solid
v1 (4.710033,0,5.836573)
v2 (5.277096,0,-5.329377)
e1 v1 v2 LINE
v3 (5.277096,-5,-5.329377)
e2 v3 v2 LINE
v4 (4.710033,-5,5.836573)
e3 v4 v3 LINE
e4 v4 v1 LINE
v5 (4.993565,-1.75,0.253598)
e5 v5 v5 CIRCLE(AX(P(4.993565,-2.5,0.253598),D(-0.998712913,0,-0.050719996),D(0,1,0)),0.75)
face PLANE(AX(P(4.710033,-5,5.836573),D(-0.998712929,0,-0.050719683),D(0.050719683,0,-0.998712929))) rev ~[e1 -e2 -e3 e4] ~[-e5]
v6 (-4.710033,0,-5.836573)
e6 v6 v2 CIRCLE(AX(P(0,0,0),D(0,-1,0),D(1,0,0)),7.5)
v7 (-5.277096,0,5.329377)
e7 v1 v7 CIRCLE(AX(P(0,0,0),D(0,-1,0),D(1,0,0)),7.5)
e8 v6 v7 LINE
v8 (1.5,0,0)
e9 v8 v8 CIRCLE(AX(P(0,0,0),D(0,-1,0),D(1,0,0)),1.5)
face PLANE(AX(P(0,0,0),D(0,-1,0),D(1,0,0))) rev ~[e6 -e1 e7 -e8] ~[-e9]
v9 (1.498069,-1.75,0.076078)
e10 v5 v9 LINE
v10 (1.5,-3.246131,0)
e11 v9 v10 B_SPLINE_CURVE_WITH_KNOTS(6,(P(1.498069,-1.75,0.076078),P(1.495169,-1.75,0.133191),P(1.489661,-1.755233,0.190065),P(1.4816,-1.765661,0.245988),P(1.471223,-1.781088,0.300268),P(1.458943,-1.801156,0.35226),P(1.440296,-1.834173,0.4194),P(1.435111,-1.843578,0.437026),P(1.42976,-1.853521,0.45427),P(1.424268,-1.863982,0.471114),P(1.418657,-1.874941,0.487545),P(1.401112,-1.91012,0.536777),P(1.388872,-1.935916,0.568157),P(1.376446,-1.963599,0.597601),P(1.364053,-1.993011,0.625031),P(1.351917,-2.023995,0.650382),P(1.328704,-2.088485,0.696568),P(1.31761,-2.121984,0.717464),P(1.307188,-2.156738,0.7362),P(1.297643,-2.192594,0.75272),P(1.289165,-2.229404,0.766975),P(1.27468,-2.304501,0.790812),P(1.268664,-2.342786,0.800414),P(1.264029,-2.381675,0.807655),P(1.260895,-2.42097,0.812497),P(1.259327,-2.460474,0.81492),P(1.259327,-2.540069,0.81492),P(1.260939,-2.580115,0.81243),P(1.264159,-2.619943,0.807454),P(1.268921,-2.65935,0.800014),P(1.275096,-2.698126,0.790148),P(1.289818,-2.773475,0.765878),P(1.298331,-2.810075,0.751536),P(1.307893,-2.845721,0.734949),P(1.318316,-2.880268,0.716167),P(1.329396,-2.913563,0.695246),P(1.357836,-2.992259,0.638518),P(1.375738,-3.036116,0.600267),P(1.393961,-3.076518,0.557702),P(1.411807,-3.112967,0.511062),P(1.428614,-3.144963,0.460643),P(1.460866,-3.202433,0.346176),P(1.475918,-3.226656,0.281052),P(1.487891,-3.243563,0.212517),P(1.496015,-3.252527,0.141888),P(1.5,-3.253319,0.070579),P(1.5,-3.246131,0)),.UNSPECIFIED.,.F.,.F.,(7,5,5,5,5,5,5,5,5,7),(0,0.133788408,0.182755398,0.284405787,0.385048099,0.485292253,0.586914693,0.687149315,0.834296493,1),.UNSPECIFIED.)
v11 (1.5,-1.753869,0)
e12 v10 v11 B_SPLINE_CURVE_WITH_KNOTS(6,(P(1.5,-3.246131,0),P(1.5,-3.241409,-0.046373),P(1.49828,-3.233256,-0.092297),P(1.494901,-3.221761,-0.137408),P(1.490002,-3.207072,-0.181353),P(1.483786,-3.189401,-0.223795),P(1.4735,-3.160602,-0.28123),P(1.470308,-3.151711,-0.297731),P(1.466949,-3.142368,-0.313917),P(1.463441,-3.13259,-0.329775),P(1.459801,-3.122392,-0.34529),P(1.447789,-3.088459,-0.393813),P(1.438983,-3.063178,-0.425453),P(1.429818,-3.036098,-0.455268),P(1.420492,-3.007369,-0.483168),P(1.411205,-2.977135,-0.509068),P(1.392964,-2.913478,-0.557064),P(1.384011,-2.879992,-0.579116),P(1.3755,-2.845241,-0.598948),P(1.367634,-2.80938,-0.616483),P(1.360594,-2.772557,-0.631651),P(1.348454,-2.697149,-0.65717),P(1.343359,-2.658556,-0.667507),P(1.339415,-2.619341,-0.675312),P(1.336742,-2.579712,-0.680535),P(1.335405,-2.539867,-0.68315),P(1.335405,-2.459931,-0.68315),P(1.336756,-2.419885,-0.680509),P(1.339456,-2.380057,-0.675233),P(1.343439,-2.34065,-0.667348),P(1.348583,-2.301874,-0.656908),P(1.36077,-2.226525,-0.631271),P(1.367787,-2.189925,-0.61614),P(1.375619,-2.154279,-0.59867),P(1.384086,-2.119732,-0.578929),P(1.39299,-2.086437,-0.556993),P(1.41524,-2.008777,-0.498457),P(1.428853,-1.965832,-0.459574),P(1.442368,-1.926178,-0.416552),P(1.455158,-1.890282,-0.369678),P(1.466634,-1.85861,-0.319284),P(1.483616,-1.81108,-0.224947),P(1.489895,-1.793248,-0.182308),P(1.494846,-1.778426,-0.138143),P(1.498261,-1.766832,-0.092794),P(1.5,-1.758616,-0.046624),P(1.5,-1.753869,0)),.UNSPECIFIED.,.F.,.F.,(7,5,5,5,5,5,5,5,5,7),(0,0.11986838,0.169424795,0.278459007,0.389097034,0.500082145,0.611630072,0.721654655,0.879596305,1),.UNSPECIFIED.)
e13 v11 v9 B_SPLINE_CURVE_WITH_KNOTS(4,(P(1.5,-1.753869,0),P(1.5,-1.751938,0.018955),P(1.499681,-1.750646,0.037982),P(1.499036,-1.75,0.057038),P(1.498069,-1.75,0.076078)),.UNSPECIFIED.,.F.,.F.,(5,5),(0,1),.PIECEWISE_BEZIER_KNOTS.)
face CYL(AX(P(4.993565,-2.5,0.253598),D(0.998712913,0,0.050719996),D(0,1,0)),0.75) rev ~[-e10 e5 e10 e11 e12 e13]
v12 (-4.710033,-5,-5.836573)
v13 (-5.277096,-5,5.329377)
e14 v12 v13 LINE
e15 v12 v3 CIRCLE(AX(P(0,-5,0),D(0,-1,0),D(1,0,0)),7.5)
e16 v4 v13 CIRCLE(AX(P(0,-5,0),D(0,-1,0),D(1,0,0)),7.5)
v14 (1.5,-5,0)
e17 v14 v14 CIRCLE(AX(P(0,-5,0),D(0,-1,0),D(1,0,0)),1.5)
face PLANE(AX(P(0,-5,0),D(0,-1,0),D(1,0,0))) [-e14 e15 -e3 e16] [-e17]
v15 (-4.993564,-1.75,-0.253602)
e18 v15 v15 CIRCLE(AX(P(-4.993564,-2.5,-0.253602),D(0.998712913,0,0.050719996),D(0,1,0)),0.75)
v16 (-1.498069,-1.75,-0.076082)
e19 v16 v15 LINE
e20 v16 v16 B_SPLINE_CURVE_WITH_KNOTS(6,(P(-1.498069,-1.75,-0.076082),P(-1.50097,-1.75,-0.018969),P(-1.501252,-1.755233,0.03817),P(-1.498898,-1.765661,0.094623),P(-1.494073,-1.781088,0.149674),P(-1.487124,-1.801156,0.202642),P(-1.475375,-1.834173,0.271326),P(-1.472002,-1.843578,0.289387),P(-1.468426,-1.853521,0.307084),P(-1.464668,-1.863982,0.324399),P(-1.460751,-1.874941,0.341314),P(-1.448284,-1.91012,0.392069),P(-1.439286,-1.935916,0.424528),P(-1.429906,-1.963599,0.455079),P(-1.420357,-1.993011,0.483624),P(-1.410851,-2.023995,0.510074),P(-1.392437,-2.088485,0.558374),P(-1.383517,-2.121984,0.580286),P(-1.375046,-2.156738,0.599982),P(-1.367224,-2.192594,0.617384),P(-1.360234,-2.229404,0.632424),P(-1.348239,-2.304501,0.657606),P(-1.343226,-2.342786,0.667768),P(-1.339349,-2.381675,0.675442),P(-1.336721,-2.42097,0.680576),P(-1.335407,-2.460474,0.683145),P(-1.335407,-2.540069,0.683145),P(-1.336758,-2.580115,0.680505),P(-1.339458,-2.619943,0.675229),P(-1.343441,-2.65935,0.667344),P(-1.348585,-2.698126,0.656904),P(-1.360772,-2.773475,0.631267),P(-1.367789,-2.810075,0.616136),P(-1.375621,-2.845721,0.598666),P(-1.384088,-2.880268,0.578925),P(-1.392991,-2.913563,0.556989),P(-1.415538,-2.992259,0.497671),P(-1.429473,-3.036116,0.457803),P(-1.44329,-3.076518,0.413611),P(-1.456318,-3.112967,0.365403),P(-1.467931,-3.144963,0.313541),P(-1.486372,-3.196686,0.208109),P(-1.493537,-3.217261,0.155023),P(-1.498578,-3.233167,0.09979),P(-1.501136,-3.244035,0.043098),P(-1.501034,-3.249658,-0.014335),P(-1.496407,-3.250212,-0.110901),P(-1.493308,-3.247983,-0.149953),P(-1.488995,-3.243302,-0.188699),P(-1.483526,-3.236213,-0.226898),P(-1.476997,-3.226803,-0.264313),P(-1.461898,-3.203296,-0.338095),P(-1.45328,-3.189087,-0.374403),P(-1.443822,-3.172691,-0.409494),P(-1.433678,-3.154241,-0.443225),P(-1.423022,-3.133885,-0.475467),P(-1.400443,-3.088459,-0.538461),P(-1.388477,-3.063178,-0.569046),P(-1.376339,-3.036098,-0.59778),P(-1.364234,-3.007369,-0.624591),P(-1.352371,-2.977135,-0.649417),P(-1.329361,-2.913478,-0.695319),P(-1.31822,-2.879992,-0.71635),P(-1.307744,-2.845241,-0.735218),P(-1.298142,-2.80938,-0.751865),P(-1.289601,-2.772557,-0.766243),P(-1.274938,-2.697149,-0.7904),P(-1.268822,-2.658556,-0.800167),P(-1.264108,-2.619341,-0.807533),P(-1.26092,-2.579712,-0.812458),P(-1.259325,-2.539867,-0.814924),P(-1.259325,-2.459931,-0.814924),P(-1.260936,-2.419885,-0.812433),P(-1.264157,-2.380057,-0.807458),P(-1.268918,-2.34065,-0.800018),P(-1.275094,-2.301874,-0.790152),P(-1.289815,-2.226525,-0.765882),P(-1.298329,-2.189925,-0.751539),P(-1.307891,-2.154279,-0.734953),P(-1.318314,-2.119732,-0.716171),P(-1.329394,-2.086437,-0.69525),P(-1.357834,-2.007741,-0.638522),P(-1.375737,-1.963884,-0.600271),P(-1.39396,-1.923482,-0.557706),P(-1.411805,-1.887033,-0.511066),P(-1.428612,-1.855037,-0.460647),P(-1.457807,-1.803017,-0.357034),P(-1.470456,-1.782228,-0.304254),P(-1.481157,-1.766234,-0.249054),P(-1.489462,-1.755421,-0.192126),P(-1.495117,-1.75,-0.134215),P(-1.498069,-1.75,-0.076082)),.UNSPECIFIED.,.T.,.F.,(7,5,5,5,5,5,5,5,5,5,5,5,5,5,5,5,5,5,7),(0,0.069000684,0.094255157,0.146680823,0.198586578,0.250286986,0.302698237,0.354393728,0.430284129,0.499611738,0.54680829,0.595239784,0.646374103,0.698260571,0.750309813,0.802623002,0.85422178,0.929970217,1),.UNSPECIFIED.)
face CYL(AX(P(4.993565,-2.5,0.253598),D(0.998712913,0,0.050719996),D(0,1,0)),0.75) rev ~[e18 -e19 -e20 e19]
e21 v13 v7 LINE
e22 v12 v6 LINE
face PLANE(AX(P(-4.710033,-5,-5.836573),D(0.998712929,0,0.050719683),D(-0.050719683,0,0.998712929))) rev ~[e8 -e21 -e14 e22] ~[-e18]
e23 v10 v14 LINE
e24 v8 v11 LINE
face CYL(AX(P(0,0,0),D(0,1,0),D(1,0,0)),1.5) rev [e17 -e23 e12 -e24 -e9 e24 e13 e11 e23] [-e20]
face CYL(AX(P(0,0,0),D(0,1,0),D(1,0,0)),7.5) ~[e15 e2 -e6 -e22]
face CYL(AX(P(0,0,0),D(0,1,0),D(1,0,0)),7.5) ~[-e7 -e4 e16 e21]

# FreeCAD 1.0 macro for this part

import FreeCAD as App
import Part
import Sketcher
from FreeCAD import Vector
Q = App.Units.Quantity

doc = App.newDocument("Part")
body = doc.addObject("PartDesign::Body", "Body")

# Sketch on XZ plane
sketch1 = body.newObject("Sketcher::SketchObject", "Sketch")
sketch1.AttachmentSupport = (doc.getObject("XZ_Plane"), [""])
sketch1.MapMode = "FlatFace"
sketch1.addGeometry(Part.Circle(Vector(0, 0, 0), Vector(0, 0, 1), 7.5), False)
sketch1.addGeometry(Part.Circle(Vector(0, 0, 0), Vector(0, 0, 1), 1.5), False)
sketch1.addConstraint(Sketcher.Constraint("Coincident", 0, 3, -1, 1))
sketch1.addConstraint(Sketcher.Constraint("Coincident", 1, 3, -1, 1))
sketch1.addConstraint(Sketcher.Constraint("Diameter", 0, Q("15 mm")))
sketch1.addConstraint(Sketcher.Constraint("Diameter", 1, Q("3 mm")))
pad1 = body.newObject("PartDesign::Pad", "Pad")
pad1.Profile = sketch1
pad1.Length = 5

# Sketch on XZ plane
sketch2 = body.newObject("Sketcher::SketchObject", "Sketch001")
sketch2.AttachmentSupport = (doc.getObject("XZ_Plane"), [""])
sketch2.MapMode = "FlatFace"
sketch2.AttachmentOffset = App.Placement(Vector(0, 0, 5), App.Rotation())
sketch2.addGeometry(Part.LineSegment(Vector(7.7, 6.2, 0), Vector(4.7, 5.8, 0)), False)
sketch2.addGeometry(Part.LineSegment(Vector(4.7, 5.8, 0), Vector(5.3, -6.6, 0)), False)
sketch2.addGeometry(Part.LineSegment(Vector(5.3, -6.6, 0), Vector(8.8, -9.1, 0)), False)
sketch2.addGeometry(Part.LineSegment(Vector(8.8, -9.1, 0), Vector(11.4, 0, 0)), False)
sketch2.addGeometry(Part.LineSegment(Vector(11.4, 0, 0), Vector(7.7, 6.2, 0)), False)
sketch2.addGeometry(Part.LineSegment(Vector(-4.7, -5.8, 0), Vector(-5.3, 6.6, 0)), False)
sketch2.addGeometry(Part.LineSegment(Vector(-5.3, 6.6, 0), Vector(-10.3, 7, 0)), False)
sketch2.addGeometry(Part.LineSegment(Vector(-10.3, 7, 0), Vector(-9.5, -9.1, 0)), False)
sketch2.addGeometry(Part.LineSegment(Vector(-9.5, -9.1, 0), Vector(-4.7, -5.8, 0)), False)
sketch2.addConstraint(Sketcher.Constraint("Coincident", 0, 2, 1, 1))
sketch2.addConstraint(Sketcher.Constraint("Coincident", 1, 2, 2, 1))
sketch2.addConstraint(Sketcher.Constraint("Coincident", 2, 2, 3, 1))
sketch2.addConstraint(Sketcher.Constraint("Coincident", 3, 2, 4, 1))
sketch2.addConstraint(Sketcher.Constraint("Coincident", 4, 2, 0, 1))
sketch2.addConstraint(Sketcher.Constraint("Coincident", 5, 2, 6, 1))
sketch2.addConstraint(Sketcher.Constraint("Coincident", 6, 2, 7, 1))
sketch2.addConstraint(Sketcher.Constraint("Coincident", 7, 2, 8, 1))
sketch2.addConstraint(Sketcher.Constraint("Coincident", 8, 2, 5, 1))
sketch2.addConstraint(Sketcher.Constraint("Symmetric", 1, 2, 5, 2, -1, 1))
sketch2.addConstraint(Sketcher.Constraint("Symmetric", 0, 2, 8, 2, -1, 1))
sketch2.addConstraint(Sketcher.Constraint("PointOnObject", 3, 2, -1))
sketch2.addConstraint(Sketcher.Constraint("Parallel", 5, 7))
sketch2.addConstraint(Sketcher.Constraint("Distance", 0, Q("3.022501 mm")))
sketch2.addConstraint(Sketcher.Constraint("DistanceX", -1, 1, 2, 2, Q("8.805699 mm")))
sketch2.addConstraint(Sketcher.Constraint("DistanceX", 5, 2, 0, 2, Q("10.0527 mm")))
sketch2.addConstraint(Sketcher.Constraint("DistanceY", 7, 2, 2, 2, Q("0.011699 mm")))
sketch2.addConstraint(Sketcher.Constraint("Distance", 2, Q("4.256959 mm")))
sketch2.addConstraint(Sketcher.Constraint("Distance", 6, Q("5.004561 mm")))
sketch2.addConstraint(Sketcher.Constraint("Distance", 8, Q("5.815611 mm")))
sketch2.addConstraint(Sketcher.Constraint("DistanceY", 1, 2, -1, 1, Q("6.620519 mm")))
sketch2.addConstraint(Sketcher.Constraint("DistanceX", -1, 1, 3, 2, Q("11.449249 mm")))
sketch2.addConstraint(Sketcher.Constraint("DistanceX", -1, 1, 4, 2, Q("7.705039 mm")))
sketch2.addConstraint(Sketcher.Constraint("DistanceY", -1, 1, 4, 2, Q("6.243331 mm")))
sketch2.addConstraint(Sketcher.Constraint("DistanceX", 6, 2, -1, 1, Q("10.334909 mm")))
pocket1 = body.newObject("PartDesign::Pocket", "Pocket")
pocket1.Profile = sketch2
pocket1.Length = 25

# Sketch on an angled plane
sketch3 = body.newObject("Sketcher::SketchObject", "Sketch002")
sketch3.Placement = App.Placement(Vector(4.993565, 0, 0.253598), App.Rotation(Vector(0, 1, 0), Vector(-0.050719996, 0, 0.998712913), Vector(0.998712913, 0, 0.050719996), "ZXY"))
sketch3.addGeometry(Part.Circle(Vector(-2.5, 0, 0), Vector(0, 0, 1), 0.8), False)
sketch3.addConstraint(Sketcher.Constraint("PointOnObject", 0, 3, -1))
sketch3.addConstraint(Sketcher.Constraint("Diameter", 0, Q("1.5 mm")))
sketch3.addConstraint(Sketcher.Constraint("DistanceX", 0, 3, -1, 1, Q("2.5 mm")))
pocket2 = body.newObject("PartDesign::Pocket", "Pocket001")
pocket2.Profile = sketch3
pocket2.Length = 25

doc.recompute()
